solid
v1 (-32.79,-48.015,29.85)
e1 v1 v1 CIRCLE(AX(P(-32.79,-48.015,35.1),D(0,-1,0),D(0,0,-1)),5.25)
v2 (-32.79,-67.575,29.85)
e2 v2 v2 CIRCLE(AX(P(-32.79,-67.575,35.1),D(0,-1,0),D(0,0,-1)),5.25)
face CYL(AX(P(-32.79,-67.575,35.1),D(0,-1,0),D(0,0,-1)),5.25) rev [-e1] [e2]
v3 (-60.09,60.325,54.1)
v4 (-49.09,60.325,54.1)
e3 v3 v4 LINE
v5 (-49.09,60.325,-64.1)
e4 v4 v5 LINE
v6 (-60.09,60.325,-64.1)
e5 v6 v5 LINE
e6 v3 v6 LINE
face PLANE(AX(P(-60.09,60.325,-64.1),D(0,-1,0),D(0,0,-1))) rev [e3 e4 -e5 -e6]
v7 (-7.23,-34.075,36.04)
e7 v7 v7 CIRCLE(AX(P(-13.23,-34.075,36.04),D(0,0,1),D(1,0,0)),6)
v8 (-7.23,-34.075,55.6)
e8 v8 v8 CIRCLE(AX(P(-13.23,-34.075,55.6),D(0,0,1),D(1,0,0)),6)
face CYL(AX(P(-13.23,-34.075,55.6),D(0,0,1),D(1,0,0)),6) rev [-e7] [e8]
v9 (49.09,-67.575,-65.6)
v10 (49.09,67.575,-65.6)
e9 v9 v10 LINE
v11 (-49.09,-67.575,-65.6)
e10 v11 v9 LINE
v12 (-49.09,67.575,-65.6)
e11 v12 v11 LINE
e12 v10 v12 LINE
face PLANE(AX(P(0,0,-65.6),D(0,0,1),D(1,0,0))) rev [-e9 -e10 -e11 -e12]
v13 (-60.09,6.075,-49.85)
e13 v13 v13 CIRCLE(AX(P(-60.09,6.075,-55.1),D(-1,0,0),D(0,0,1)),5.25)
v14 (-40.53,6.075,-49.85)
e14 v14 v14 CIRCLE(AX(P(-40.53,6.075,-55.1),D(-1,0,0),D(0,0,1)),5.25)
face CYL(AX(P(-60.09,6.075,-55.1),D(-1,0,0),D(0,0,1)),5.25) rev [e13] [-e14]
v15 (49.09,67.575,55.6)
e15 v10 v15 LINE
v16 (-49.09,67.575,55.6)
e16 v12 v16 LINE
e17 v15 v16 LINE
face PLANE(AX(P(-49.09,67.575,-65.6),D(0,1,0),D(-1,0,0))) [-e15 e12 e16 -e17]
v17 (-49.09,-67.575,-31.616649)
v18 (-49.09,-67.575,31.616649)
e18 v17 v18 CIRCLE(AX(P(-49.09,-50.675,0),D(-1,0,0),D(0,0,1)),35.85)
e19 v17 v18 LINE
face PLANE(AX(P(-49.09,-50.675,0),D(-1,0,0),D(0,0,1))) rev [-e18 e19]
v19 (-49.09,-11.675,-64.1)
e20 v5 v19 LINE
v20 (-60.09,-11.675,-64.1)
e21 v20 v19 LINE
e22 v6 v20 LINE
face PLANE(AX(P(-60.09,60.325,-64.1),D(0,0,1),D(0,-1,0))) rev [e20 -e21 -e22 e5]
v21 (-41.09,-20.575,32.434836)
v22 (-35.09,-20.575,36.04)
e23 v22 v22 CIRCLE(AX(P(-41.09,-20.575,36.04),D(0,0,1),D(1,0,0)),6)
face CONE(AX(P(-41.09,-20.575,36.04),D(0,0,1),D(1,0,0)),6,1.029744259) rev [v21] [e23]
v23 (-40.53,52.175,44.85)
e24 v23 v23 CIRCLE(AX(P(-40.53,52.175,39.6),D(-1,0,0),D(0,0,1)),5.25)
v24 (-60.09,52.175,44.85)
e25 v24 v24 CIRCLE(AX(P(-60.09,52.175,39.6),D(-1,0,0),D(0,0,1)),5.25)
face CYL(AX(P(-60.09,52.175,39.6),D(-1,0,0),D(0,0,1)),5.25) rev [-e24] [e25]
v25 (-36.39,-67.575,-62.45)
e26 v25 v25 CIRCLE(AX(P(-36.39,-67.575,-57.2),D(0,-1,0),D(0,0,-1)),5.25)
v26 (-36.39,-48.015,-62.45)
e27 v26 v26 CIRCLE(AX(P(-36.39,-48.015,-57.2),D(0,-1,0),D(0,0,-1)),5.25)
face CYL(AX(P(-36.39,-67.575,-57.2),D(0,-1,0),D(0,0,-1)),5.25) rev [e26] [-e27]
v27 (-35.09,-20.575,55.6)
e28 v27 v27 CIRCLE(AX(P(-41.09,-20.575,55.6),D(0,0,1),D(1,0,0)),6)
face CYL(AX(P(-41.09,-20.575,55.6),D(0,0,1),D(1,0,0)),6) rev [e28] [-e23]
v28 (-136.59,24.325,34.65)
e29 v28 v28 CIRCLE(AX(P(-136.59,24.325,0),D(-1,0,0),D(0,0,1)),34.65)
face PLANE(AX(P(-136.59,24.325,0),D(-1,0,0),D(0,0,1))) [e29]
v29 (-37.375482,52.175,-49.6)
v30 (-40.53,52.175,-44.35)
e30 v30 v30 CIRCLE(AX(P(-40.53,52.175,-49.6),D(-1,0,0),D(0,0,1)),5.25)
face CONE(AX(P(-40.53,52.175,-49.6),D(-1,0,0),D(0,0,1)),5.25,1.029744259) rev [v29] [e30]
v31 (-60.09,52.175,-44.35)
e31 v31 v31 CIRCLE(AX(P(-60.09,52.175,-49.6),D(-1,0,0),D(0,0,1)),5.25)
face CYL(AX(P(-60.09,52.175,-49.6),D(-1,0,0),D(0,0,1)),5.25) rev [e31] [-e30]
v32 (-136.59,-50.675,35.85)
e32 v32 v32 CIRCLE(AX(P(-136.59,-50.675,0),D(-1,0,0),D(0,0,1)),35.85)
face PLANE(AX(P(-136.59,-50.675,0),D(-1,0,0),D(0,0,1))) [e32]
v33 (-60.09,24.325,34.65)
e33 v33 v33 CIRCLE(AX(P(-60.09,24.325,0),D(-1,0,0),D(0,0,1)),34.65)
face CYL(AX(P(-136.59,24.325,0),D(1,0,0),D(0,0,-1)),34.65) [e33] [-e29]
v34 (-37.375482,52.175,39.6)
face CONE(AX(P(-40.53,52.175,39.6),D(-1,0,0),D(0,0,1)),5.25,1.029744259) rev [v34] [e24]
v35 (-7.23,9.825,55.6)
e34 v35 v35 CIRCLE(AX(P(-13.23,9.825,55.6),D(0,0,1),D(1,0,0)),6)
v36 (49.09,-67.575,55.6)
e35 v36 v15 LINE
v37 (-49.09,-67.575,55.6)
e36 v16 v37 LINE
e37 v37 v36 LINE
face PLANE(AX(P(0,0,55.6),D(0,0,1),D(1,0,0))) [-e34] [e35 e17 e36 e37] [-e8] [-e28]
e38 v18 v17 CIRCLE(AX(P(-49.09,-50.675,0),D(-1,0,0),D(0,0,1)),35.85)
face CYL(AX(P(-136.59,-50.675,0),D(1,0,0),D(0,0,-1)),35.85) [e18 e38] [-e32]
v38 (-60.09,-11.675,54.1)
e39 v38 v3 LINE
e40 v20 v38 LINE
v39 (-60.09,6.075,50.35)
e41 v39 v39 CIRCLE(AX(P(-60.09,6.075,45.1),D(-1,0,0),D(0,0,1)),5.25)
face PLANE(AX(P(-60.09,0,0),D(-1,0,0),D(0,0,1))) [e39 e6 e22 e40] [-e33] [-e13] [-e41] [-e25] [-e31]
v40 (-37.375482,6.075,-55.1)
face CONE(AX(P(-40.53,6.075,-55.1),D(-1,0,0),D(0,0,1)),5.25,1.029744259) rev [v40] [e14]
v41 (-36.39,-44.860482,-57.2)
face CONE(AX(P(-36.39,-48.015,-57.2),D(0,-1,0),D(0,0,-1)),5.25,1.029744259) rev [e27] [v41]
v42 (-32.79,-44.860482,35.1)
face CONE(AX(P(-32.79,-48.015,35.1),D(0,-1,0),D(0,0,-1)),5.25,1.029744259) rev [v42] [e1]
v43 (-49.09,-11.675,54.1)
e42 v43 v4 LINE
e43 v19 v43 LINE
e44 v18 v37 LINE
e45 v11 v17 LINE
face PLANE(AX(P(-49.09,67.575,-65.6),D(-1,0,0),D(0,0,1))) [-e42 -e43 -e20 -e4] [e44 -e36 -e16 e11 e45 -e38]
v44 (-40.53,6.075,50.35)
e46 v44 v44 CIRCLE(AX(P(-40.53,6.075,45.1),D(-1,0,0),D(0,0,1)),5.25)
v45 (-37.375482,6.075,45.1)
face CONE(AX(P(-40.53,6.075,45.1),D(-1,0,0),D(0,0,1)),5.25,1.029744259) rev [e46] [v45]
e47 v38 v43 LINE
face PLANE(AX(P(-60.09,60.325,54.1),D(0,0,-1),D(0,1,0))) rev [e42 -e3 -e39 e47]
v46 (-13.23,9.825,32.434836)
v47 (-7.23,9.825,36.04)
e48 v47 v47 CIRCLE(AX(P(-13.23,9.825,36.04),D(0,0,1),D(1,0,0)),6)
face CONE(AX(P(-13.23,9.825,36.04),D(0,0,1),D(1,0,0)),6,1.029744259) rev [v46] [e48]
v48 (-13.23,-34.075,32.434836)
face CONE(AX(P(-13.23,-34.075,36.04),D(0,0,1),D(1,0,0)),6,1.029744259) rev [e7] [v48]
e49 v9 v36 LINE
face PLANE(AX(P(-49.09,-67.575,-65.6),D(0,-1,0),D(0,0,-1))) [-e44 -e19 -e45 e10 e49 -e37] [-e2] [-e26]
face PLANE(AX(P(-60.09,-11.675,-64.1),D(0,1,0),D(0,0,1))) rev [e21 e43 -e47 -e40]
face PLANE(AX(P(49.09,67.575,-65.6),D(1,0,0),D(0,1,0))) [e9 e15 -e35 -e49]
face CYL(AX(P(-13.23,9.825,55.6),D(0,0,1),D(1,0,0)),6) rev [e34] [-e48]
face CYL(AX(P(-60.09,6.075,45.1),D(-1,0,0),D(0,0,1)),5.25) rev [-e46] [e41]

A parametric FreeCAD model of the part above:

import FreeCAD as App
import Part
import Sketcher
Q = App.Units.Quantity


def add_polygon(sketch, points):
    """Adds a closed chain of lines whose ends are joined by coincident constraints."""
    first, n = sketch.GeometryCount, len(points)
    for a, b in zip(points, points[1:] + points[:1]):
        sketch.addGeometry(Part.LineSegment(App.Vector(*a, 0), App.Vector(*b, 0)), False)
    for i in range(n):
        sketch.addConstraint(Sketcher.Constraint("Coincident", first + i, 2, first + (i + 1) % n, 1))

doc = App.newDocument("Part")
body = doc.addObject("PartDesign::Body", "Body")

# Sketch on XY plane
sketch1 = doc.addObject("Sketcher::SketchObject", "Sketch")
body.addObject(sketch1)
sketch1.AttachmentSupport = (doc.XY_Plane, [""])
sketch1.MapMode = "FlatFace"
add_polygon(sketch1, [(-49, 68), (-49, -68), (49, -68), (49, 68)])  # lines 0-3
sketch1.addConstraint([
    Sketcher.Constraint("Vertical", 0),
    Sketcher.Constraint("Horizontal", 1),
    Sketcher.Constraint("Vertical", 2),
    Sketcher.Constraint("Horizontal", 3),
    Sketcher.Constraint("Symmetric", 0, 2, 2, 2, -1, 1),
    Sketcher.Constraint("DistanceX", 1, 1, 1, 2, Q("98.18 mm")),
    Sketcher.Constraint("DistanceY", 0, 2, 0, 1, Q("135.15 mm")),
])
pad1 = doc.addObject("PartDesign::Pad", "Pad")
body.addObject(pad1)
pad1.Profile = sketch1
pad1.Type = "TwoLengths"
pad1.Length = 55.6
pad1.Length2 = 65.6

# Sketch on YZ plane
sketch2 = doc.addObject("Sketcher::SketchObject", "Sketch001")
body.addObject(sketch2)
sketch2.AttachmentSupport = (doc.YZ_Plane, [""])
sketch2.MapMode = "FlatFace"
sketch2.AttachmentOffset = App.Placement(App.Vector(0, 0, -49.09), App.Rotation())
sketch2.addGeometry([
    Part.Circle(App.Vector(24, 0, 0), App.Vector(0, 0, 1), 35),
    Part.Circle(App.Vector(-51, 0, 0), App.Vector(0, 0, 1), 36),
], False)
sketch2.addConstraint([
    Sketcher.Constraint("PointOnObject", 0, 3, -1),
    Sketcher.Constraint("PointOnObject", 1, 3, -1),
    Sketcher.Constraint("Diameter", 0, Q("69.3 mm")),
    Sketcher.Constraint("Diameter", 1, Q("71.7 mm")),
    Sketcher.Constraint("DistanceX", 1, 3, 0, 3, Q("75 mm")),
    Sketcher.Constraint("DistanceX", -1, 1, 0, 3, Q("24.325 mm")),
])
pad2 = doc.addObject("PartDesign::Pad", "Pad001")
body.addObject(pad2)
pad2.Profile = sketch2
pad2.Length = 87.5
pad2.Reversed = True

# Sketch on XY plane
sketch3 = doc.addObject("Sketcher::SketchObject", "Sketch002")
body.addObject(sketch3)
sketch3.AttachmentSupport = (doc.XY_Plane, [""])
sketch3.MapMode = "FlatFace"
sketch3.AttachmentOffset = App.Placement(App.Vector(0, 0, 55.6), App.Rotation())
sketch3.addGeometry([
    Part.Circle(App.Vector(-13, 10, 0), App.Vector(0, 0, 1), 6),
    Part.Circle(App.Vector(-13, -34, 0), App.Vector(0, 0, 1), 6),
    Part.Circle(App.Vector(-41, -21, 0), App.Vector(0, 0, 1), 6),
], False)
sketch3.addConstraint([
    Sketcher.Constraint("Equal", 0, 1),
    Sketcher.Constraint("Equal", 1, 2),
    Sketcher.Constraint("Vertical", 0, 3, 1, 3),
    Sketcher.Constraint("Diameter", 0, Q("12 mm")),
    Sketcher.Constraint("DistanceY", 1, 3, 0, 3, Q("43.9 mm")),
    Sketcher.Constraint("DistanceY", 1, 3, 2, 3, Q("13.5 mm")),
    Sketcher.Constraint("DistanceX", 0, 3, -1, 1, Q("13.23 mm")),
    Sketcher.Constraint("DistanceX", 2, 3, -1, 1, Q("41.09 mm")),
    Sketcher.Constraint("DistanceY", -1, 1, 0, 3, Q("9.825 mm")),
])
doc.recompute()
hole = doc.addObject("PartDesign::Hole", "Hole")
body.addObject(hole)
hole.Profile = sketch3
hole.ThreadType = "None"
hole.Diameter = 12
hole.DepthType = "Dimension"
hole.Depth = 19.56
hole.DrillPoint = "Angled"
hole.DrillPointAngle = 118

# Sketch on XZ plane
sketch4 = doc.addObject("Sketcher::SketchObject", "Sketch003")
body.addObject(sketch4)
sketch4.AttachmentSupport = (doc.XZ_Plane, [""])
sketch4.MapMode = "FlatFace"
sketch4.AttachmentOffset = App.Placement(App.Vector(0, 0, 67.575), App.Rotation())
sketch4.addGeometry([
    Part.Circle(App.Vector(-33, 35, 0), App.Vector(0, 0, 1), 5),
    Part.Circle(App.Vector(-36, -57, 0), App.Vector(0, 0, 1), 5),
], False)
sketch4.addConstraint([
    Sketcher.Constraint("Equal", 0, 1),
    Sketcher.Constraint("Diameter", 0, Q("10.5 mm")),
    Sketcher.Constraint("DistanceY", -1, 1, 0, 3, Q("35.1 mm")),
    Sketcher.Constraint("DistanceY", 1, 3, -1, 1, Q("57.2 mm")),
    Sketcher.Constraint("DistanceX", 1, 3, 0, 3, Q("3.6 mm")),
    Sketcher.Constraint("DistanceX", 0, 3, -1, 1, Q("32.79 mm")),
])
doc.recompute()
hole2 = doc.addObject("PartDesign::Hole", "Hole001")
body.addObject(hole2)
hole2.Profile = sketch4
hole2.ThreadType = "None"
hole2.Diameter = 10.5
hole2.DepthType = "Dimension"
hole2.Depth = 19.56
hole2.DrillPoint = "Angled"
hole2.DrillPointAngle = 118

# Sketch on YZ plane
sketch5 = doc.addObject("Sketcher::SketchObject", "Sketch004")
body.addObject(sketch5)
sketch5.AttachmentSupport = (doc.YZ_Plane, [""])
sketch5.MapMode = "FlatFace"
sketch5.AttachmentOffset = App.Placement(App.Vector(0, 0, -49.09), App.Rotation())
add_polygon(sketch5, [(60, -64), (-12, -64), (-12, 54), (60, 54)])  # lines 0-3
sketch5.addConstraint([
    Sketcher.Constraint("Horizontal", 0),
    Sketcher.Constraint("Vertical", 1),
    Sketcher.Constraint("Horizontal", 2),
    Sketcher.Constraint("Vertical", 3),
    Sketcher.Constraint("DistanceX", 0, 2, 0, 1, Q("72 mm")),
    Sketcher.Constraint("DistanceY", 1, 1, 1, 2, Q("118.2 mm")),
    Sketcher.Constraint("DistanceY", 0, 2, -1, 1, Q("64.1 mm")),
    Sketcher.Constraint("DistanceX", 0, 2, -1, 1, Q("11.675 mm")),
])
pad3 = doc.addObject("PartDesign::Pad", "Pad002")
body.addObject(pad3)
pad3.Profile = sketch5
pad3.Length = 11
pad3.Reversed = True

# Sketch on YZ plane
sketch6 = doc.addObject("Sketcher::SketchObject", "Sketch005")
body.addObject(sketch6)
sketch6.AttachmentSupport = (doc.YZ_Plane, [""])
sketch6.MapMode = "FlatFace"
sketch6.AttachmentOffset = App.Placement(App.Vector(0, 0, -60.09), App.Rotation())
sketch6.addGeometry([
    Part.Circle(App.Vector(52, -50, 0), App.Vector(0, 0, 1), 5),
    Part.Circle(App.Vector(6, -55, 0), App.Vector(0, 0, 1), 5),
    Part.Circle(App.Vector(6, 45, 0), App.Vector(0, 0, 1), 5),
    Part.Circle(App.Vector(52, 40, 0), App.Vector(0, 0, 1), 5),
], False)
sketch6.addConstraint([
    Sketcher.Constraint("Equal", 0, 1),
    Sketcher.Constraint("Equal", 1, 2),
    Sketcher.Constraint("Equal", 2, 3),
    Sketcher.Constraint("Vertical", 1, 3, 2, 3),
    Sketcher.Constraint("Vertical", 0, 3, 3, 3),
    Sketcher.Constraint("Diameter", 0, Q("10.5 mm")),
    Sketcher.Constraint("DistanceY", 0, 3, -1, 1, Q("49.6 mm")),
    Sketcher.Constraint("DistanceY", 1, 3, -1, 1, Q("55.1 mm")),
    Sketcher.Constraint("DistanceY", -1, 1, 2, 3, Q("45.1 mm")),
    Sketcher.Constraint("DistanceY", -1, 1, 3, 3, Q("39.6 mm")),
    Sketcher.Constraint("DistanceX", 1, 3, 0, 3, Q("46.1 mm")),
    Sketcher.Constraint("DistanceX", -1, 1, 0, 3, Q("52.175 mm")),
])
doc.recompute()
hole3 = doc.addObject("PartDesign::Hole", "Hole002")
body.addObject(hole3)
hole3.Profile = sketch6
hole3.ThreadType = "None"
hole3.Diameter = 10.5
hole3.DepthType = "Dimension"
hole3.Depth = 19.56
hole3.DrillPoint = "Angled"
hole3.DrillPointAngle = 118
hole3.Reversed = True

doc.recompute()
